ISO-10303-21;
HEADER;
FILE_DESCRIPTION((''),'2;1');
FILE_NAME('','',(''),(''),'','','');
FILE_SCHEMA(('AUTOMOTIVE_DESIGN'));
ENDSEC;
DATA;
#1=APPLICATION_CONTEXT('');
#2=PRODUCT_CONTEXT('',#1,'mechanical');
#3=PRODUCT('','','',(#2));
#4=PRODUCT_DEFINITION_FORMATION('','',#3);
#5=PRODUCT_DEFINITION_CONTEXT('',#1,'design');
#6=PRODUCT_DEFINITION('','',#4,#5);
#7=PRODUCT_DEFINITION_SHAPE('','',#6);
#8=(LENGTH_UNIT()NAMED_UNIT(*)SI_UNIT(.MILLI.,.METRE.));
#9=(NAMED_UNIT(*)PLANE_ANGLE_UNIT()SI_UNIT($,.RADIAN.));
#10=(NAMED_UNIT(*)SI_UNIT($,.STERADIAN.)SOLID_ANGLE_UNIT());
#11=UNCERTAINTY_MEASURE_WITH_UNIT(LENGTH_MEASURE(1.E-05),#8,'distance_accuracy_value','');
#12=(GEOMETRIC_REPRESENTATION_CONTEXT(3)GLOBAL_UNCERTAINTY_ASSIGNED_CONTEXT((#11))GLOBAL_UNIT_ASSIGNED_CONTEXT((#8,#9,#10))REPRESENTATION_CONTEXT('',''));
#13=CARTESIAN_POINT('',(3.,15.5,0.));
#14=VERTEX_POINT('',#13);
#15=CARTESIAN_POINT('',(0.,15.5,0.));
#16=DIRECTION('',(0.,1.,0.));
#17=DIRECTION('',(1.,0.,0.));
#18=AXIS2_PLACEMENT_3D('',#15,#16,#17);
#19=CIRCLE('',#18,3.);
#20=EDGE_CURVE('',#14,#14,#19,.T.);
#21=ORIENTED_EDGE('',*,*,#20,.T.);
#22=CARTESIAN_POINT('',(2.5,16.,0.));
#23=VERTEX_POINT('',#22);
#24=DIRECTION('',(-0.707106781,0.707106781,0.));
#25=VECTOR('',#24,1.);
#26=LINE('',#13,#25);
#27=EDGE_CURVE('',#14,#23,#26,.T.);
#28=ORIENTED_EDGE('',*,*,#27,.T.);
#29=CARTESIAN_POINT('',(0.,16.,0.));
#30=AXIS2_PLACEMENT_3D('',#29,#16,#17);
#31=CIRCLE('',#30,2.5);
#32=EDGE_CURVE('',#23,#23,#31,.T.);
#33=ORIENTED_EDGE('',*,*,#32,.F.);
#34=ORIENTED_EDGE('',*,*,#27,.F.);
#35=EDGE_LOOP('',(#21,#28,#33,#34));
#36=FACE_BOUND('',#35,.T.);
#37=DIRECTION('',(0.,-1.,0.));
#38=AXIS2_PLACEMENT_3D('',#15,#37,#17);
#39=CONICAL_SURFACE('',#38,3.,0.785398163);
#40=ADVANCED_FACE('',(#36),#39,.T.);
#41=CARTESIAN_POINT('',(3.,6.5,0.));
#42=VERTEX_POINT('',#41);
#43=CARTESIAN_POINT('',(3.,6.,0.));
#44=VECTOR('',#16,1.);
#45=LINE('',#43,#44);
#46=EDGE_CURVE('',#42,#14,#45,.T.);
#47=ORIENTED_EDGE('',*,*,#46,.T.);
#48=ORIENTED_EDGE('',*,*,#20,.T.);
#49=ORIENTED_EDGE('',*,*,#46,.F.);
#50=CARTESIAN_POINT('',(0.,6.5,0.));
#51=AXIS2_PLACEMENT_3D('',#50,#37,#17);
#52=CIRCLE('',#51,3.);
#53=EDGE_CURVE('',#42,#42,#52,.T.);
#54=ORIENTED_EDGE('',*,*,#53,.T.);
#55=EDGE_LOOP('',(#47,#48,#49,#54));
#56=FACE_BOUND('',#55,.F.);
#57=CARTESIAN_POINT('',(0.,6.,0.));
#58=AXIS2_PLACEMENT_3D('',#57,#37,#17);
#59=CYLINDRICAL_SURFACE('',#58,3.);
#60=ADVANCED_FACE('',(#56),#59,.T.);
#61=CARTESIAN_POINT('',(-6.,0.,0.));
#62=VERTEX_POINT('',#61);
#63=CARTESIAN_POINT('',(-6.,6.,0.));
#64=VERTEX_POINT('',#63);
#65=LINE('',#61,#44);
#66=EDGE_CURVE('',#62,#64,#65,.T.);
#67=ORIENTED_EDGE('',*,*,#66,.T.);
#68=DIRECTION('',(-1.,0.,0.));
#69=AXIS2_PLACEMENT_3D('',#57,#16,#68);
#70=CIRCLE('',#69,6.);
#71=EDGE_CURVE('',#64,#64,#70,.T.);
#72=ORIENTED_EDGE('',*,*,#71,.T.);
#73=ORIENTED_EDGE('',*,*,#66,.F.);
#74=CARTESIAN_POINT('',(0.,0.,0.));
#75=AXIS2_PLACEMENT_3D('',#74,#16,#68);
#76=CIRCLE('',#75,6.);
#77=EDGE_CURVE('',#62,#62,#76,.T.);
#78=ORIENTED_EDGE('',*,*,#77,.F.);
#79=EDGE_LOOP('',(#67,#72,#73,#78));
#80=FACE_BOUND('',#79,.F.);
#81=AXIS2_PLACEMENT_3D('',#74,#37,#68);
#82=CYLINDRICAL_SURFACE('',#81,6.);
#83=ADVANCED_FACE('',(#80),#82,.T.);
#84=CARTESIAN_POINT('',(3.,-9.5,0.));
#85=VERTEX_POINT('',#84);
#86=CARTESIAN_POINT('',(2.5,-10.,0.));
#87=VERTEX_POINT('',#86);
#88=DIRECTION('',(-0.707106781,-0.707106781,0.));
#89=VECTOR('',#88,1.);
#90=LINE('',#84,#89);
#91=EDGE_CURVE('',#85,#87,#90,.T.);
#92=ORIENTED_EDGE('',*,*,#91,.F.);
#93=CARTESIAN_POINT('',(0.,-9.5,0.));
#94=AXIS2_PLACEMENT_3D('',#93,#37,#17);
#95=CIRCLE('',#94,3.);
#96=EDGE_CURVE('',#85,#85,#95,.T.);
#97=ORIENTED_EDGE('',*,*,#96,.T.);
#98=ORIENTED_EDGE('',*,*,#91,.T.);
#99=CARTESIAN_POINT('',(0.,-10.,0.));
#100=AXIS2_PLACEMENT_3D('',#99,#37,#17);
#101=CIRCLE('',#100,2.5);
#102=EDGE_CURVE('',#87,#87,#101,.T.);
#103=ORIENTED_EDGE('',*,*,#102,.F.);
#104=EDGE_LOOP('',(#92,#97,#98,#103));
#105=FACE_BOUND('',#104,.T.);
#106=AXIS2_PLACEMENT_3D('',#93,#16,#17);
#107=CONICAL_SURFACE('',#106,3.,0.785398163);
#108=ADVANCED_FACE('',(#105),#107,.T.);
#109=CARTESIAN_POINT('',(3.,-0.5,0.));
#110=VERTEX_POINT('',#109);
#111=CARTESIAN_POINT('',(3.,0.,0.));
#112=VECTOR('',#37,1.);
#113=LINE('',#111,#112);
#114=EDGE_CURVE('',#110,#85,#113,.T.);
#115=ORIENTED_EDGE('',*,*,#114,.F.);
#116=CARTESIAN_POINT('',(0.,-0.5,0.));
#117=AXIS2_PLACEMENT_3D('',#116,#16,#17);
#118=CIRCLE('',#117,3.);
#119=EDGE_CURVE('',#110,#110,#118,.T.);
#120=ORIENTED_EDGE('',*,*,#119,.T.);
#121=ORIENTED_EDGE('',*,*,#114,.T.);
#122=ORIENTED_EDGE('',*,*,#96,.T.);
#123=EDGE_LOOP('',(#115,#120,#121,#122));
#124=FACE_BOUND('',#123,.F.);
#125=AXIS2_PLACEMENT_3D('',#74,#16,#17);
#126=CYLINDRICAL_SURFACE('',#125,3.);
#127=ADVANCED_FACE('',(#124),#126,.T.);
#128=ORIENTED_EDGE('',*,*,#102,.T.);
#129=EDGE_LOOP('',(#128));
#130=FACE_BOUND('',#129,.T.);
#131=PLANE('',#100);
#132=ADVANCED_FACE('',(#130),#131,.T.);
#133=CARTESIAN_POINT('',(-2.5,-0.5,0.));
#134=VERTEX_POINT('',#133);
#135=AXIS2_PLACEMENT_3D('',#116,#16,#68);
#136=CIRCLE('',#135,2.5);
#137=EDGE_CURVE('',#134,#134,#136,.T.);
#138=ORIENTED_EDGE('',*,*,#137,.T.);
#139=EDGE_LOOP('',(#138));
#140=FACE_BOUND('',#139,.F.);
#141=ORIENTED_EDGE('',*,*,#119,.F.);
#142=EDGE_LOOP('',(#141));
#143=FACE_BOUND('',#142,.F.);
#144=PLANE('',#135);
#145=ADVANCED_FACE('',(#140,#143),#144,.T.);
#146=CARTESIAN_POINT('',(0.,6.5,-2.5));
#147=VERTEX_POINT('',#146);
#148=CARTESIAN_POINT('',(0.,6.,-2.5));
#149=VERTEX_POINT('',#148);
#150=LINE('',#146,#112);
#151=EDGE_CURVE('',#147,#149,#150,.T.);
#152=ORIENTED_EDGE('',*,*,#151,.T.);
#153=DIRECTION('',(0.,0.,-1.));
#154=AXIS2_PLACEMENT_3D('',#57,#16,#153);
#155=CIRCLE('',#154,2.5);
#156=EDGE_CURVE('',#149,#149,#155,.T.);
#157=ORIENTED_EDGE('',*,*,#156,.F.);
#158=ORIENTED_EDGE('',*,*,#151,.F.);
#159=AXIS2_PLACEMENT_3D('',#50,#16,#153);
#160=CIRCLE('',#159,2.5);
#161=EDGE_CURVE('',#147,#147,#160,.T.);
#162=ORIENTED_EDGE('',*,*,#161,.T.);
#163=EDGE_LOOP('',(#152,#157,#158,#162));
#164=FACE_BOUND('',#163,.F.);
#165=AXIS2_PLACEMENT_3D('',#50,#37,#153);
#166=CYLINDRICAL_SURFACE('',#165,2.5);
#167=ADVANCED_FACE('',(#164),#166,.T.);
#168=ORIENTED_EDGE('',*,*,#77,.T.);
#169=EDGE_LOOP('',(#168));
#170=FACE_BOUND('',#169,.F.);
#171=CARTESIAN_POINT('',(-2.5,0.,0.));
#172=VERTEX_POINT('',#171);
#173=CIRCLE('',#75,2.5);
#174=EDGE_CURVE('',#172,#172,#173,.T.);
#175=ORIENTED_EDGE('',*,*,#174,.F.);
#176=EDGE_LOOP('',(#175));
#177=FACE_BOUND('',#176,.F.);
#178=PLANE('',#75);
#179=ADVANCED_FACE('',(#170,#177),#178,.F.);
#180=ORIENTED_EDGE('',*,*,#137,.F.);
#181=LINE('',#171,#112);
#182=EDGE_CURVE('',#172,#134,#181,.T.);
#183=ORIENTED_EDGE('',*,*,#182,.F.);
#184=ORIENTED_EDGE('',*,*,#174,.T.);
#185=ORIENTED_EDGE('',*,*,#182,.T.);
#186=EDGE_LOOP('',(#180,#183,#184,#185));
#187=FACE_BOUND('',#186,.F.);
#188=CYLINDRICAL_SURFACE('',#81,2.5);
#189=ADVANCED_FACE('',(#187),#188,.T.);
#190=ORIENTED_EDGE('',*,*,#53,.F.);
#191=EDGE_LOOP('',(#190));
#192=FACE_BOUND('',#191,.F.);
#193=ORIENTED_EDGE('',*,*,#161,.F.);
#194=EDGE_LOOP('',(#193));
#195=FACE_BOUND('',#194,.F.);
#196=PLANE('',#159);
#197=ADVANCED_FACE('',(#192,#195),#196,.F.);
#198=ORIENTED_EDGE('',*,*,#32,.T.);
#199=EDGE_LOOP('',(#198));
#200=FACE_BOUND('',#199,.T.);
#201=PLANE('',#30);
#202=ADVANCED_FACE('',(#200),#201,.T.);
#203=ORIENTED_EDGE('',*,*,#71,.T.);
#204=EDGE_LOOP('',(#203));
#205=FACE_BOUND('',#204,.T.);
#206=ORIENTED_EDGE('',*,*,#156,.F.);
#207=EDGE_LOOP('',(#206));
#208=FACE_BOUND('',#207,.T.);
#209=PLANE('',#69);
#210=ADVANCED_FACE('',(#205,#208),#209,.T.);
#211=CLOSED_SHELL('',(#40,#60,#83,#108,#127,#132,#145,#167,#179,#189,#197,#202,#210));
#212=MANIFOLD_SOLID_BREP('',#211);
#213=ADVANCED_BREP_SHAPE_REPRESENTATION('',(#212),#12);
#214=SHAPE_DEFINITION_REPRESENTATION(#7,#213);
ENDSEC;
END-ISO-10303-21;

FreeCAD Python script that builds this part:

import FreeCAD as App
import Part
import Sketcher
Q = App.Units.Quantity


def edges_at(feature, points):
    """Names of the edges that pass closest to the given points."""
    edges = feature.Shape.Edges
    near = lambda p: min(range(len(edges)), key=lambda i: edges[i].distToShape(Part.Vertex(*p))[0])
    return sorted({f"Edge{near(p) + 1}" for p in points})

doc = App.newDocument("Part")
body = doc.addObject("PartDesign::Body", "Body")

# Sketch on XZ plane
sketch1 = body.newObject("Sketcher::SketchObject", "Sketch")
sketch1.AttachmentSupport = (doc.getObject("XZ_Plane"), [""])
sketch1.MapMode = "FlatFace"
sketch1.addGeometry(Part.Circle(App.Vector(0, 0, 0), App.Vector(0, 0, 1), 6), False)
sketch1.addConstraint(Sketcher.Constraint("Coincident", 0, 3, -1, 1))
sketch1.addConstraint(Sketcher.Constraint("Diameter", 0, Q("12 mm")))
pad1 = body.newObject("PartDesign::Pad", "Pad")
pad1.Profile = sketch1
pad1.Length = 6
pad1.Reversed = True

# Sketch on XZ plane
sketch2 = body.newObject("Sketcher::SketchObject", "Sketch001")
sketch2.AttachmentSupport = (doc.getObject("XZ_Plane"), [""])
sketch2.MapMode = "FlatFace"
sketch2.addGeometry(Part.Circle(App.Vector(0, 0, 0), App.Vector(0, 0, 1), 3), False)
sketch2.addConstraint(Sketcher.Constraint("Coincident", 0, 3, -1, 1))
sketch2.addConstraint(Sketcher.Constraint("Diameter", 0, Q("6 mm")))
pad2 = body.newObject("PartDesign::Pad", "Pad001")
pad2.Profile = sketch2
pad2.Length = 10
doc.recompute()

chamfer = body.newObject("PartDesign::Chamfer", "Chamfer")
chamfer.Base = (pad2, edges_at(pad2, [(-3, -10, 0)]))
chamfer.Size = 0.5

# Sketch on XY plane
sketch3 = body.newObject("Sketcher::SketchObject", "Sketch002")
sketch3.AttachmentSupport = (doc.getObject("XY_Plane"), [""])
sketch3.MapMode = "FlatFace"
sketch3.addGeometry(Part.LineSegment(App.Vector(-2.5, -0.5, 0), App.Vector(-2.5, 0, 0)), False)
sketch3.addGeometry(Part.LineSegment(App.Vector(-2.5, 0, 0), App.Vector(-3, 0, 0)), False)
sketch3.addGeometry(Part.LineSegment(App.Vector(-3, 0, 0), App.Vector(-3, -0.5, 0)), False)
sketch3.addGeometry(Part.LineSegment(App.Vector(-3, -0.5, 0), App.Vector(-2.5, -0.5, 0)), False)
sketch3.addConstraint(Sketcher.Constraint("Coincident", 0, 2, 1, 1))
sketch3.addConstraint(Sketcher.Constraint("Coincident", 1, 2, 2, 1))
sketch3.addConstraint(Sketcher.Constraint("Coincident", 2, 2, 3, 1))
sketch3.addConstraint(Sketcher.Constraint("Coincident", 3, 2, 0, 1))
sketch3.addConstraint(Sketcher.Constraint("Vertical", 0))
sketch3.addConstraint(Sketcher.Constraint("Horizontal", 1))
sketch3.addConstraint(Sketcher.Constraint("Vertical", 2))
sketch3.addConstraint(Sketcher.Constraint("Horizontal", 3))
sketch3.addConstraint(Sketcher.Constraint("PointOnObject", 0, 2, -1))
sketch3.addConstraint(Sketcher.Constraint("Equal", 3, 0))
sketch3.addConstraint(Sketcher.Constraint("DistanceX", 1, 2, 1, 1, Q("0.5 mm")))
sketch3.addConstraint(Sketcher.Constraint("DistanceX", 1, 2, -1, 1, Q("3 mm")))
groove = body.newObject("PartDesign::Groove", "Groove")
groove.Profile = sketch3
groove.ReferenceAxis = (sketch3, ["V_Axis"])
groove.Angle = 360

# Sketch on XZ plane
sketch4 = body.newObject("Sketcher::SketchObject", "Sketch003")
sketch4.AttachmentSupport = (doc.getObject("XZ_Plane"), [""])
sketch4.MapMode = "FlatFace"
sketch4.AttachmentOffset = App.Placement(App.Vector(0, 0, -6), App.Rotation())
sketch4.addGeometry(Part.Circle(App.Vector(0, 0, 0), App.Vector(0, 0, 1), 3), False)
sketch4.addConstraint(Sketcher.Constraint("Coincident", 0, 3, -1, 1))
sketch4.addConstraint(Sketcher.Constraint("Diameter", 0, Q("6 mm")))
pad3 = body.newObject("PartDesign::Pad", "Pad002")
pad3.Profile = sketch4
pad3.Length = 10
pad3.Reversed = True

# Sketch on YZ plane
sketch5 = body.newObject("Sketcher::SketchObject", "Sketch004")
sketch5.AttachmentSupport = (doc.getObject("YZ_Plane"), [""])
sketch5.MapMode = "FlatFace"
sketch5.addGeometry(Part.LineSegment(App.Vector(6, -2.5, 0), App.Vector(6, -3, 0)), False)
sketch5.addGeometry(Part.LineSegment(App.Vector(6, -3, 0), App.Vector(6.5, -3, 0)), False)
sketch5.addGeometry(Part.LineSegment(App.Vector(6.5, -3, 0), App.Vector(6.5, -2.5, 0)), False)
sketch5.addGeometry(Part.LineSegment(App.Vector(6.5, -2.5, 0), App.Vector(6, -2.5, 0)), False)
sketch5.addConstraint(Sketcher.Constraint("Coincident", 0, 2, 1, 1))
sketch5.addConstraint(Sketcher.Constraint("Coincident", 1, 2, 2, 1))
sketch5.addConstraint(Sketcher.Constraint("Coincident", 2, 2, 3, 1))
sketch5.addConstraint(Sketcher.Constraint("Coincident", 3, 2, 0, 1))
sketch5.addConstraint(Sketcher.Constraint("Vertical", 0))
sketch5.addConstraint(Sketcher.Constraint("Horizontal", 1))
sketch5.addConstraint(Sketcher.Constraint("Vertical", 2))
sketch5.addConstraint(Sketcher.Constraint("Horizontal", 3))
sketch5.addConstraint(Sketcher.Constraint("Equal", 3, 0))
sketch5.addConstraint(Sketcher.Constraint("DistanceX", 1, 1, 1, 2, Q("0.5 mm")))
sketch5.addConstraint(Sketcher.Constraint("DistanceX", -1, 1, 0, 2, Q("6 mm")))
sketch5.addConstraint(Sketcher.Constraint("DistanceY", 0, 2, -1, 1, Q("3 mm")))
groove2 = body.newObject("PartDesign::Groove", "Groove001")
groove2.Profile = sketch5
groove2.ReferenceAxis = (sketch5, ["H_Axis"])
groove2.Angle = 360
doc.recompute()

chamfer2 = body.newObject("PartDesign::Chamfer", "Chamfer001")
chamfer2.Base = (groove2, edges_at(groove2, [(-3, 16, 0)]))
chamfer2.Size = 0.5

doc.recompute()
